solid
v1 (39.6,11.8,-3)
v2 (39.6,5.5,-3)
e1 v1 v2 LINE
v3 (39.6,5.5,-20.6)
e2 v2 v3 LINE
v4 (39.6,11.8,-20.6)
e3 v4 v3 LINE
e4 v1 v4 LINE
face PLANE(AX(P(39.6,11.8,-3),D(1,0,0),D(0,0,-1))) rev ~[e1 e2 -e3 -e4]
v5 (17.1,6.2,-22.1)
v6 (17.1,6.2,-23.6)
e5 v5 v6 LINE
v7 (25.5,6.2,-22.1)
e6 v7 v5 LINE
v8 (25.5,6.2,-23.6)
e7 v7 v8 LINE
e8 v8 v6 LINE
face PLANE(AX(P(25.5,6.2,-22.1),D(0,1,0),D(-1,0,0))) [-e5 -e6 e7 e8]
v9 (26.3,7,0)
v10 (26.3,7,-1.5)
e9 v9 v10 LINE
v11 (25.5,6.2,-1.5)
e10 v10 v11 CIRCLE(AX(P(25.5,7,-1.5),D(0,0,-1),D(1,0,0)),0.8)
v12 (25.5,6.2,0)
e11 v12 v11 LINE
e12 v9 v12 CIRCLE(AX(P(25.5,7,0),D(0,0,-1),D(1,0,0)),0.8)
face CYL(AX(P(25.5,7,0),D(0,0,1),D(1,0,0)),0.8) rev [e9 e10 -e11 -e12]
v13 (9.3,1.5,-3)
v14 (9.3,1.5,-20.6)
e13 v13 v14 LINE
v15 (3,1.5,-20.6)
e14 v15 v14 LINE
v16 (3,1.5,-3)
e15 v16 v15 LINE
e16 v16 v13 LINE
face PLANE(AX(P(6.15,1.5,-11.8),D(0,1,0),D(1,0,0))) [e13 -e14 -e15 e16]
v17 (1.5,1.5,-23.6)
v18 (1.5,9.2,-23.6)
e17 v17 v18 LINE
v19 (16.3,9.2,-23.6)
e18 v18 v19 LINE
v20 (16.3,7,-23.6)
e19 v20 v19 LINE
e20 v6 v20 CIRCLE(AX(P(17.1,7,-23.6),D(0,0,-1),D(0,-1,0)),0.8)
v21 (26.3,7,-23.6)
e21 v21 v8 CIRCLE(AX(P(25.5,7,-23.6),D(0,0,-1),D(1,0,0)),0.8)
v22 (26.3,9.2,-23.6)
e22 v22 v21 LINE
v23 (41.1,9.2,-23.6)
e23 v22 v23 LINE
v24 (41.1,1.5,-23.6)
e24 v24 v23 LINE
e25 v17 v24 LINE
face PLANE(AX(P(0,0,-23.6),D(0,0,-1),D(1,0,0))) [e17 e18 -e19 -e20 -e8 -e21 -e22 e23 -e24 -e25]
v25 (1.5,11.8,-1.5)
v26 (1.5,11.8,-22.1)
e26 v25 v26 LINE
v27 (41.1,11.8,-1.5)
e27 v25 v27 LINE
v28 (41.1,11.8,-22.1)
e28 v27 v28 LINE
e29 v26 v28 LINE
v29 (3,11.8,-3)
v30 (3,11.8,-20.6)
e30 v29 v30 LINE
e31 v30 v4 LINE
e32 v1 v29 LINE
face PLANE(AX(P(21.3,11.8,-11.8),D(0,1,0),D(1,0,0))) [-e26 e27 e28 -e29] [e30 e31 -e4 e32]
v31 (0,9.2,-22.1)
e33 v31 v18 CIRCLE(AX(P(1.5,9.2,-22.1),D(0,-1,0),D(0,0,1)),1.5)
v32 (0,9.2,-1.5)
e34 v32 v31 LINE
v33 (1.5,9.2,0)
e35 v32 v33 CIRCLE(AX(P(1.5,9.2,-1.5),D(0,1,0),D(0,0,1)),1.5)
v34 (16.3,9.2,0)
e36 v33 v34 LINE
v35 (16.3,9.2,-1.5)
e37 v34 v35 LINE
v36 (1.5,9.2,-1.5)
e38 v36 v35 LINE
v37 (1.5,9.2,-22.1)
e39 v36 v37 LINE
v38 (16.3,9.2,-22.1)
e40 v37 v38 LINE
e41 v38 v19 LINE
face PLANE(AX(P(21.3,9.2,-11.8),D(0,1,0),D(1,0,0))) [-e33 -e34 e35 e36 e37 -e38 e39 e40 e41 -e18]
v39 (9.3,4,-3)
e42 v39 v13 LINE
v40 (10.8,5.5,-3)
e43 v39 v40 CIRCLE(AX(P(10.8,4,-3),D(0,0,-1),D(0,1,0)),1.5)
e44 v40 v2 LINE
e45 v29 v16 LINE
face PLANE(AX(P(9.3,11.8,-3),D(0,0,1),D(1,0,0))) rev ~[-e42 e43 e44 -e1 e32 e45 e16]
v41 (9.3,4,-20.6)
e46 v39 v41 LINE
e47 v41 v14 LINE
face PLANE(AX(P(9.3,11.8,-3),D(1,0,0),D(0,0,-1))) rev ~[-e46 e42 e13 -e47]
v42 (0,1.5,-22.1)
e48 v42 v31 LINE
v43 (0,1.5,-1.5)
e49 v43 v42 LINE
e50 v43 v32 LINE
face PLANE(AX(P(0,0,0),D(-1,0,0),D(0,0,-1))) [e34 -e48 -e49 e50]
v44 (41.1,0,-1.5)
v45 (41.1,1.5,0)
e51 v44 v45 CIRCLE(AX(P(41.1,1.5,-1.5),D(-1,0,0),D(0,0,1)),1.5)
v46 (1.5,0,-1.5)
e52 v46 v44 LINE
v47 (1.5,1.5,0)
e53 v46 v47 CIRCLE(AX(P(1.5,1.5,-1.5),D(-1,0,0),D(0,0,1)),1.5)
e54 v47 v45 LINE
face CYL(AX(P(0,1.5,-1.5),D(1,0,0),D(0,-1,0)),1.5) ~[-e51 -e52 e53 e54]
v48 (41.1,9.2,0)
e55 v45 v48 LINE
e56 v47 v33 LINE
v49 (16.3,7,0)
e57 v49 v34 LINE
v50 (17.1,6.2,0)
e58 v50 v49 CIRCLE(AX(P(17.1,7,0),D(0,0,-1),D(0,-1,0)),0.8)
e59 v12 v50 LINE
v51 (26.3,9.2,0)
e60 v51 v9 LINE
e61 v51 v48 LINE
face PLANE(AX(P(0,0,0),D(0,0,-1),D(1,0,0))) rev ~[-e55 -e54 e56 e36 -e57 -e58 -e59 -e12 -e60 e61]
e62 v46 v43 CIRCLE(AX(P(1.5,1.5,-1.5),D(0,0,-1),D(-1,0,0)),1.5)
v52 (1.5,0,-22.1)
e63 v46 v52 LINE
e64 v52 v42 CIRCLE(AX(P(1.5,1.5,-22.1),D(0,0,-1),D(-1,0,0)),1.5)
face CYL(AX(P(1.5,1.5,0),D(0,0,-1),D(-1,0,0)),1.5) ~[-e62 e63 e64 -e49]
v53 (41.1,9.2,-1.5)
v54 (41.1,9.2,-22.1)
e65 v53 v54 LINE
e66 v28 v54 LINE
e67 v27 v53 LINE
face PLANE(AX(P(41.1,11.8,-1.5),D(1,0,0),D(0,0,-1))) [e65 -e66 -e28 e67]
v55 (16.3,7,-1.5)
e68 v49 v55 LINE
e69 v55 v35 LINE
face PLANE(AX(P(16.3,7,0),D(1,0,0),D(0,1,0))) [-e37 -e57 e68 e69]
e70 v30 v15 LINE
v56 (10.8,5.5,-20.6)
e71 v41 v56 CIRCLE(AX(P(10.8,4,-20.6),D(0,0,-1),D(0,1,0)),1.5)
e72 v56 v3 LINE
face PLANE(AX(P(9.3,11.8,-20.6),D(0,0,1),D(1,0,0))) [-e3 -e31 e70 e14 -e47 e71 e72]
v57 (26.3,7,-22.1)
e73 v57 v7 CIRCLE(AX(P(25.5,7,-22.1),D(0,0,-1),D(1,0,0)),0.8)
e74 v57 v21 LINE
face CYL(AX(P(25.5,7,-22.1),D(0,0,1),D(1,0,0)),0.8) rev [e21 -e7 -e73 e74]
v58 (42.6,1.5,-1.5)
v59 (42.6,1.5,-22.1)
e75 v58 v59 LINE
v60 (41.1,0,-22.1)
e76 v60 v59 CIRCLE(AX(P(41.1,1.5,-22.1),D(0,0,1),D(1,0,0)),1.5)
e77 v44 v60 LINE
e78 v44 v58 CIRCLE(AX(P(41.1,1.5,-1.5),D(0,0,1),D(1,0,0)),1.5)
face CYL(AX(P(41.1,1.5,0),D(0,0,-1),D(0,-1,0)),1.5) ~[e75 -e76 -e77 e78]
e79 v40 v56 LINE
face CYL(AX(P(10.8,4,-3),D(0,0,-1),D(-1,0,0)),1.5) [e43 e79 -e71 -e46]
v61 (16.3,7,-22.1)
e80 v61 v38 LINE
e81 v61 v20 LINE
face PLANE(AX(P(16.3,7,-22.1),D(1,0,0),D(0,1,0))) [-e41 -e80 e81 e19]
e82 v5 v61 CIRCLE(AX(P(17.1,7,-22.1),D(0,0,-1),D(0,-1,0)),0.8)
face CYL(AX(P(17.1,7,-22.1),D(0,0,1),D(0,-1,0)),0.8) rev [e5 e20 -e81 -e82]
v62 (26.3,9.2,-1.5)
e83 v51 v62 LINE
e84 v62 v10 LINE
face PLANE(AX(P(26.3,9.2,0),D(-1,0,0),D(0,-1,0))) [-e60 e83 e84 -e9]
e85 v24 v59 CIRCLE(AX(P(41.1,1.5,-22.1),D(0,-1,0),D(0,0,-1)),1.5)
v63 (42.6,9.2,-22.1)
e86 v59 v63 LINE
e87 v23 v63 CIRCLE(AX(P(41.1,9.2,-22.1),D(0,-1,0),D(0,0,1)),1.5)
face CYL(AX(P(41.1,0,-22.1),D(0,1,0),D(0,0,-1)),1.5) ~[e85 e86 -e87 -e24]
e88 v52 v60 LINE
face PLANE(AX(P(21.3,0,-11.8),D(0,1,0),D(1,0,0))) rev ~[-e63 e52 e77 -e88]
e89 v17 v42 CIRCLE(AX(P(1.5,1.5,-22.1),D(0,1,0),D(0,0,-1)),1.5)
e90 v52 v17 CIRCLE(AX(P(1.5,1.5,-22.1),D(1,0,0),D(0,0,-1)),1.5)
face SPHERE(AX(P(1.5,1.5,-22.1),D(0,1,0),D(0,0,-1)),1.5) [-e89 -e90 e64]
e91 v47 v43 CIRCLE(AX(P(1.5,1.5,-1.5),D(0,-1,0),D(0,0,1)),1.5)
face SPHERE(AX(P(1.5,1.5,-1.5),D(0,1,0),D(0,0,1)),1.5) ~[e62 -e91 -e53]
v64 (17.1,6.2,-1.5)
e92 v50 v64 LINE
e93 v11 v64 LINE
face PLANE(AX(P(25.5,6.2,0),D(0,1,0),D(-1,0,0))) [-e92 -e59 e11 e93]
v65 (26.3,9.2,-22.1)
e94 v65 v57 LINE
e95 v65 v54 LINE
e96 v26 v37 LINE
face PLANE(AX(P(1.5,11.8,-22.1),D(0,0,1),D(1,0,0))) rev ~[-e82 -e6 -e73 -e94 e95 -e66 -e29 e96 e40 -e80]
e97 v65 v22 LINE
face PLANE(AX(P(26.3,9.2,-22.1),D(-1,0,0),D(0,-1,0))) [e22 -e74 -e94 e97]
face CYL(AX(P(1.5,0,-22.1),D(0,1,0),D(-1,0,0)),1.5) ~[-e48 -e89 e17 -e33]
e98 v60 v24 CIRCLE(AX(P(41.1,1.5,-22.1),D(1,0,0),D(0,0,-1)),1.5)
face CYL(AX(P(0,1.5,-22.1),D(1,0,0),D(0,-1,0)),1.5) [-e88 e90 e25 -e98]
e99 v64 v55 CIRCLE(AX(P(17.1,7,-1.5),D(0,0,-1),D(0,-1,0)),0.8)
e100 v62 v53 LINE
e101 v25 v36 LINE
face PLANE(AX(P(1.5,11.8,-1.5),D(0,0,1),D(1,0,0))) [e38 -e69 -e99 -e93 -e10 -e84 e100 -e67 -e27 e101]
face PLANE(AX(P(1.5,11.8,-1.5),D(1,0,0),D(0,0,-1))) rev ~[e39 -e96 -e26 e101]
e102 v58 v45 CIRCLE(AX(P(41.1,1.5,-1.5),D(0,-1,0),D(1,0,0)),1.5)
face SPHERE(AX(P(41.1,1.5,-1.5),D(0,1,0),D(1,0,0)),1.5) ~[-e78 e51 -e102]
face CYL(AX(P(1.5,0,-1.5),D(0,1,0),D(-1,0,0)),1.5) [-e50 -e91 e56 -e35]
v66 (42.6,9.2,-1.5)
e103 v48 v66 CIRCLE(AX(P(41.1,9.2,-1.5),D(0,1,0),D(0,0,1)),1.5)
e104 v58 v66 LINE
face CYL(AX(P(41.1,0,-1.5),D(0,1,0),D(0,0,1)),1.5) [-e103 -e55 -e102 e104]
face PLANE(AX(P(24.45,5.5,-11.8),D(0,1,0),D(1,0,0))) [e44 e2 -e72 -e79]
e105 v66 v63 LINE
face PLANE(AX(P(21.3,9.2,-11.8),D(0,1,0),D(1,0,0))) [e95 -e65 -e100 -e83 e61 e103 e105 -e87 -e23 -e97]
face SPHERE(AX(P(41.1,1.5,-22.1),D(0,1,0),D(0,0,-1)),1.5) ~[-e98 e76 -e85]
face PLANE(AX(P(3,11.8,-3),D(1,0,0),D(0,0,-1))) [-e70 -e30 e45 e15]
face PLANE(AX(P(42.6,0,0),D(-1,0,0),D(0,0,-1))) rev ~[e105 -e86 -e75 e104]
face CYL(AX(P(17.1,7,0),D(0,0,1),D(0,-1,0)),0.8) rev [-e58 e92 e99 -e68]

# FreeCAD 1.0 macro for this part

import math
import FreeCAD as App
import Part
import Sketcher
Q = App.Units.Quantity


def edges_at(feature, points):
    """Names of the edges that pass closest to the given points."""
    edges = feature.Shape.Edges
    near = lambda p: min(range(len(edges)), key=lambda i: edges[i].distToShape(Part.Vertex(*p))[0])
    return sorted({f"Edge{near(p) + 1}" for p in points})

doc = App.newDocument("Part")
params = doc.addObject("Spreadsheet::Sheet", "Params")
for row, (alias, value) in enumerate([
    ("sketch1_width", "42.6 mm"),
    ("sketch1_height", "23.6 mm"),
    ("pad1_length", "11.8 mm"),
    ("sketch2_width", "30.3 mm"),
    ("sketch2_height", "17.6 mm"),
    ("pocket1_length", "6.3 mm"),
    ("sketch3_width", "6.3 mm"),
    ("sketch3_height", "17.6 mm"),
    ("pocket2_length", "10.3 mm"),
    ("sketch4_width", "42.6 mm"),
    ("sketch4_width2", "39.6 mm"),
    ("sketch4_height", "23.6 mm"),
    ("sketch4_height2", "20.6 mm"),
    ("pocket3_length", "2.6 mm"),
    ("fillet_radius", "1.5 mm"),
    ("fillet2_radius", "1.5 mm"),
    ("sketch5_radius", "0.8 mm"),
    ("sketch5_width", "10 mm"),
    ("sketch5_height", "2.2 mm"),
    ("pocket4_length", "1.5 mm"),
    ("sketch6_radius", "0.8 mm"),
    ("sketch6_width", "10 mm"),
    ("sketch6_height", "2.2 mm"),
    ("pocket5_length", "1.5 mm"),
], start=1):
    params.set(f"A{row}", alias)
    params.set(f"B{row}", "=" + value)
    params.setAlias(f"B{row}", alias)

body = doc.addObject("PartDesign::Body", "Body")

# Sketch on XZ plane
sketch1 = body.newObject("Sketcher::SketchObject", "Sketch")
sketch1.AttachmentSupport = (doc.getObject("XZ_Plane"), [""])
sketch1.MapMode = "FlatFace"
sketch1.addGeometry(Part.LineSegment(App.Vector(0, -24, 0), App.Vector(0, 0, 0)), False)
sketch1.addGeometry(Part.LineSegment(App.Vector(0, 0, 0), App.Vector(43, 0, 0)), False)
sketch1.addGeometry(Part.LineSegment(App.Vector(43, 0, 0), App.Vector(43, -24, 0)), False)
sketch1.addGeometry(Part.LineSegment(App.Vector(43, -24, 0), App.Vector(0, -24, 0)), False)
sketch1.addConstraint(Sketcher.Constraint("Coincident", 0, 2, 1, 1))
sketch1.addConstraint(Sketcher.Constraint("Coincident", 1, 2, 2, 1))
sketch1.addConstraint(Sketcher.Constraint("Coincident", 2, 2, 3, 1))
sketch1.addConstraint(Sketcher.Constraint("Coincident", 3, 2, 0, 1))
sketch1.addConstraint(Sketcher.Constraint("Vertical", 0))
sketch1.addConstraint(Sketcher.Constraint("Horizontal", 1))
sketch1.addConstraint(Sketcher.Constraint("Vertical", 2))
sketch1.addConstraint(Sketcher.Constraint("Horizontal", 3))
sketch1.addConstraint(Sketcher.Constraint("Coincident", 0, 2, -1, 1))
sketch1.addConstraint(Sketcher.Constraint("DistanceX", 1, 1, 1, 2, Q("42.6 mm")))
sketch1.addConstraint(Sketcher.Constraint("DistanceY", 0, 1, 0, 2, Q("23.6 mm")))
sketch1.setExpression("Constraints[9]", "Params.sketch1_width")
sketch1.setExpression("Constraints[10]", "Params.sketch1_height")
pad1 = body.newObject("PartDesign::Pad", "Pad")
pad1.Profile = sketch1
pad1.setExpression("Length", "Params.pad1_length")
pad1.Reversed = True

# Sketch on XZ plane
sketch2 = body.newObject("Sketcher::SketchObject", "Sketch001")
sketch2.AttachmentSupport = (doc.getObject("XZ_Plane"), [""])
sketch2.MapMode = "FlatFace"
sketch2.AttachmentOffset = App.Placement(App.Vector(0, 0, -11.8), App.Rotation())
sketch2.addGeometry(Part.LineSegment(App.Vector(9, -21, 0), App.Vector(9, -3, 0)), False)
sketch2.addGeometry(Part.LineSegment(App.Vector(9, -3, 0), App.Vector(40, -3, 0)), False)
sketch2.addGeometry(Part.LineSegment(App.Vector(40, -3, 0), App.Vector(40, -21, 0)), False)
sketch2.addGeometry(Part.LineSegment(App.Vector(40, -21, 0), App.Vector(9, -21, 0)), False)
sketch2.addConstraint(Sketcher.Constraint("Coincident", 0, 2, 1, 1))
sketch2.addConstraint(Sketcher.Constraint("Coincident", 1, 2, 2, 1))
sketch2.addConstraint(Sketcher.Constraint("Coincident", 2, 2, 3, 1))
sketch2.addConstraint(Sketcher.Constraint("Coincident", 3, 2, 0, 1))
sketch2.addConstraint(Sketcher.Constraint("Vertical", 0))
sketch2.addConstraint(Sketcher.Constraint("Horizontal", 1))
sketch2.addConstraint(Sketcher.Constraint("Vertical", 2))
sketch2.addConstraint(Sketcher.Constraint("Horizontal", 3))
sketch2.addConstraint(Sketcher.Constraint("DistanceX", 1, 1, 1, 2, Q("30.3 mm")))
sketch2.addConstraint(Sketcher.Constraint("DistanceY", 0, 1, 0, 2, Q("17.6 mm")))
sketch2.addConstraint(Sketcher.Constraint("DistanceY", 0, 2, -1, 1, Q("3 mm")))
sketch2.addConstraint(Sketcher.Constraint("DistanceX", -1, 1, 0, 2, Q("9.3 mm")))
sketch2.setExpression("Constraints[8]", "Params.sketch2_width")
sketch2.setExpression("Constraints[9]", "Params.sketch2_height")
pocket1 = body.newObject("PartDesign::Pocket", "Pocket")
pocket1.Profile = sketch2
pocket1.setExpression("Length", "Params.pocket1_length")
pocket1.Reversed = True

# Sketch on XZ plane
sketch3 = body.newObject("Sketcher::SketchObject", "Sketch002")
sketch3.AttachmentSupport = (doc.getObject("XZ_Plane"), [""])
sketch3.MapMode = "FlatFace"
sketch3.AttachmentOffset = App.Placement(App.Vector(0, 0, -11.8), App.Rotation())
sketch3.addGeometry(Part.LineSegment(App.Vector(3, -21, 0), App.Vector(3, -3, 0)), False)
sketch3.addGeometry(Part.LineSegment(App.Vector(3, -3, 0), App.Vector(9, -3, 0)), False)
sketch3.addGeometry(Part.LineSegment(App.Vector(9, -3, 0), App.Vector(9, -21, 0)), False)
sketch3.addGeometry(Part.LineSegment(App.Vector(9, -21, 0), App.Vector(3, -21, 0)), False)
sketch3.addConstraint(Sketcher.Constraint("Coincident", 0, 2, 1, 1))
sketch3.addConstraint(Sketcher.Constraint("Coincident", 1, 2, 2, 1))
sketch3.addConstraint(Sketcher.Constraint("Coincident", 2, 2, 3, 1))
sketch3.addConstraint(Sketcher.Constraint("Coincident", 3, 2, 0, 1))
sketch3.addConstraint(Sketcher.Constraint("Vertical", 0))
sketch3.addConstraint(Sketcher.Constraint("Horizontal", 1))
sketch3.addConstraint(Sketcher.Constraint("Vertical", 2))
sketch3.addConstraint(Sketcher.Constraint("Horizontal", 3))
sketch3.addConstraint(Sketcher.Constraint("DistanceX", 1, 1, 1, 2, Q("6.3 mm")))
sketch3.addConstraint(Sketcher.Constraint("DistanceY", 0, 1, 0, 2, Q("17.6 mm")))
sketch3.addConstraint(Sketcher.Constraint("DistanceX", -1, 1, 0, 2, Q("3 mm")))
sketch3.addConstraint(Sketcher.Constraint("DistanceY", 0, 2, -1, 1, Q("3 mm")))
sketch3.setExpression("Constraints[8]", "Params.sketch3_width")
sketch3.setExpression("Constraints[9]", "Params.sketch3_height")
pocket2 = body.newObject("PartDesign::Pocket", "Pocket001")
pocket2.Profile = sketch3
pocket2.setExpression("Length", "Params.pocket2_length")
pocket2.Reversed = True

# Sketch on XZ plane
sketch4 = body.newObject("Sketcher::SketchObject", "Sketch003")
sketch4.AttachmentSupport = (doc.getObject("XZ_Plane"), [""])
sketch4.MapMode = "FlatFace"
sketch4.AttachmentOffset = App.Placement(App.Vector(0, 0, -11.8), App.Rotation())
sketch4.addGeometry(Part.LineSegment(App.Vector(0, -24, 0), App.Vector(0, 0, 0)), False)
sketch4.addGeometry(Part.LineSegment(App.Vector(0, 0, 0), App.Vector(43, 0, 0)), False)
sketch4.addGeometry(Part.LineSegment(App.Vector(43, 0, 0), App.Vector(43, -24, 0)), False)
sketch4.addGeometry(Part.LineSegment(App.Vector(43, -24, 0), App.Vector(0, -24, 0)), False)
sketch4.addGeometry(Part.LineSegment(App.Vector(41, -2, 0), App.Vector(2, -2, 0)), False)
sketch4.addGeometry(Part.LineSegment(App.Vector(2, -2, 0), App.Vector(2, -22, 0)), False)
sketch4.addGeometry(Part.LineSegment(App.Vector(2, -22, 0), App.Vector(41, -22, 0)), False)
sketch4.addGeometry(Part.LineSegment(App.Vector(41, -22, 0), App.Vector(41, -2, 0)), False)
sketch4.addConstraint(Sketcher.Constraint("Coincident", 0, 2, 1, 1))
sketch4.addConstraint(Sketcher.Constraint("Coincident", 1, 2, 2, 1))
sketch4.addConstraint(Sketcher.Constraint("Coincident", 2, 2, 3, 1))
sketch4.addConstraint(Sketcher.Constraint("Coincident", 3, 2, 0, 1))
sketch4.addConstraint(Sketcher.Constraint("Coincident", 4, 2, 5, 1))
sketch4.addConstraint(Sketcher.Constraint("Coincident", 5, 2, 6, 1))
sketch4.addConstraint(Sketcher.Constraint("Coincident", 6, 2, 7, 1))
sketch4.addConstraint(Sketcher.Constraint("Coincident", 7, 2, 4, 1))
sketch4.addConstraint(Sketcher.Constraint("Vertical", 0))
sketch4.addConstraint(Sketcher.Constraint("Horizontal", 1))
sketch4.addConstraint(Sketcher.Constraint("Vertical", 2))
sketch4.addConstraint(Sketcher.Constraint("Horizontal", 3))
sketch4.addConstraint(Sketcher.Constraint("Horizontal", 4))
sketch4.addConstraint(Sketcher.Constraint("Vertical", 5))
sketch4.addConstraint(Sketcher.Constraint("Horizontal", 6))
sketch4.addConstraint(Sketcher.Constraint("Vertical", 7))
sketch4.addConstraint(Sketcher.Constraint("Coincident", 0, 2, -1, 1))
sketch4.addConstraint(Sketcher.Constraint("DistanceX", 1, 1, 1, 2, Q("42.6 mm")))
sketch4.addConstraint(Sketcher.Constraint("DistanceX", 4, 2, 4, 1, Q("39.6 mm")))
sketch4.addConstraint(Sketcher.Constraint("DistanceY", 0, 1, 0, 2, Q("23.6 mm")))
sketch4.addConstraint(Sketcher.Constraint("DistanceY", 5, 2, 5, 1, Q("20.6 mm")))
sketch4.addConstraint(Sketcher.Constraint("DistanceX", -1, 1, 4, 2, Q("1.5 mm")))
sketch4.addConstraint(Sketcher.Constraint("DistanceY", 4, 2, -1, 1, Q("1.5 mm")))
sketch4.setExpression("Constraints[17]", "Params.sketch4_width")
sketch4.setExpression("Constraints[18]", "Params.sketch4_width2")
sketch4.setExpression("Constraints[19]", "Params.sketch4_height")
sketch4.setExpression("Constraints[20]", "Params.sketch4_height2")
pocket3 = body.newObject("PartDesign::Pocket", "Pocket002")
pocket3.Profile = sketch4
pocket3.setExpression("Length", "Params.pocket3_length")
pocket3.Reversed = True
doc.recompute()

fillet = body.newObject("PartDesign::Fillet", "Fillet")
fillet.Base = (pocket3, edges_at(pocket3, [
    (0, 4.6, -23.6),
    (42.6, 4.6, -23.6),
    (42.6, 4.6, 0),
    (0, 4.6, 0),
    (21.3, 0, -23.6),
    (42.6, 0, -11.8),
    (21.3, 0, 0),
    (0, 0, -11.8),
]))
fillet.setExpression("Radius", "Params.fillet_radius")
doc.recompute()

fillet2 = body.newObject("PartDesign::Fillet", "Fillet001")
fillet2.Base = (fillet, edges_at(fillet, [(9.3, 5.5, -11.8)]))
fillet2.setExpression("Radius", "Params.fillet2_radius")

# Sketch on XY plane
sketch5 = body.newObject("Sketcher::SketchObject", "Sketch004")
sketch5.AttachmentSupport = (doc.getObject("XY_Plane"), [""])
sketch5.MapMode = "FlatFace"
sketch5.addGeometry(Part.LineSegment(App.Vector(26.3, 9.2, 0), App.Vector(16.3, 9.2, 0)), False)
sketch5.addGeometry(Part.LineSegment(App.Vector(16.3, 9.2, 0), App.Vector(16.3, 7, 0)), False)
sketch5.addGeometry(Part.ArcOfCircle(Part.Circle(App.Vector(17.1, 7, 0), App.Vector(0, 0, 1), 0.8), math.radians(180), math.radians(270)), False)
sketch5.addGeometry(Part.LineSegment(App.Vector(17.1, 6.2, 0), App.Vector(25.5, 6.2, 0)), False)
sketch5.addGeometry(Part.ArcOfCircle(Part.Circle(App.Vector(25.5, 7, 0), App.Vector(0, 0, 1), 0.8), math.radians(-90), math.radians(0)), False)
sketch5.addGeometry(Part.LineSegment(App.Vector(26.3, 7, 0), App.Vector(26.3, 9.2, 0)), False)
sketch5.addConstraint(Sketcher.Constraint("Coincident", 0, 2, 1, 1))
sketch5.addConstraint(Sketcher.Constraint("Tangent", 1, 2, 2, 1))
sketch5.addConstraint(Sketcher.Constraint("Tangent", 2, 2, 3, 1))
sketch5.addConstraint(Sketcher.Constraint("Tangent", 3, 2, 4, 1))
sketch5.addConstraint(Sketcher.Constraint("Tangent", 4, 2, 5, 1))
sketch5.addConstraint(Sketcher.Constraint("Coincident", 5, 2, 0, 1))
sketch5.addConstraint(Sketcher.Constraint("Horizontal", 0))
sketch5.addConstraint(Sketcher.Constraint("Vertical", 1))
sketch5.addConstraint(Sketcher.Constraint("Horizontal", 3))
sketch5.addConstraint(Sketcher.Constraint("Vertical", 5))
sketch5.addConstraint(Sketcher.Constraint("Equal", 2, 4))
sketch5.addConstraint(Sketcher.Constraint("Radius", 2, Q("0.8 mm")))
sketch5.addConstraint(Sketcher.Constraint("DistanceX", 0, 2, 0, 1, Q("10 mm")))
sketch5.addConstraint(Sketcher.Constraint("DistanceY", 1, 2, 1, 1, Q("2.2 mm")))
sketch5.addConstraint(Sketcher.Constraint("DistanceY", -1, 1, 2, 3, Q("7 mm")))
sketch5.addConstraint(Sketcher.Constraint("DistanceX", -1, 1, 2, 3, Q("17.1 mm")))
sketch5.setExpression("Constraints[11]", "Params.sketch5_radius")
sketch5.setExpression("Constraints[12]", "Params.sketch5_width")
sketch5.setExpression("Constraints[13]", "Params.sketch5_height")
pocket4 = body.newObject("PartDesign::Pocket", "Pocket003")
pocket4.Profile = sketch5
pocket4.setExpression("Length", "Params.pocket4_length")

# Sketch on XY plane
sketch6 = body.newObject("Sketcher::SketchObject", "Sketch005")
sketch6.AttachmentSupport = (doc.getObject("XY_Plane"), [""])
sketch6.MapMode = "FlatFace"
sketch6.AttachmentOffset = App.Placement(App.Vector(0, 0, -22.1), App.Rotation())
sketch6.addGeometry(Part.LineSegment(App.Vector(16.3, 9.2, 0), App.Vector(26.3, 9.2, 0)), False)
sketch6.addGeometry(Part.LineSegment(App.Vector(26.3, 9.2, 0), App.Vector(26.3, 7, 0)), False)
sketch6.addGeometry(Part.ArcOfCircle(Part.Circle(App.Vector(25.5, 7, 0), App.Vector(0, 0, 1), 0.8), math.radians(-90), math.radians(0)), False)
sketch6.addGeometry(Part.LineSegment(App.Vector(25.5, 6.2, 0), App.Vector(17.1, 6.2, 0)), False)
sketch6.addGeometry(Part.ArcOfCircle(Part.Circle(App.Vector(17.1, 7, 0), App.Vector(0, 0, 1), 0.8), math.radians(180), math.radians(270)), False)
sketch6.addGeometry(Part.LineSegment(App.Vector(16.3, 7, 0), App.Vector(16.3, 9.2, 0)), False)
sketch6.addConstraint(Sketcher.Constraint("Coincident", 0, 2, 1, 1))
sketch6.addConstraint(Sketcher.Constraint("Tangent", 1, 2, 2, 2))
sketch6.addConstraint(Sketcher.Constraint("Tangent", 2, 1, 3, 1))
sketch6.addConstraint(Sketcher.Constraint("Tangent", 3, 2, 4, 2))
sketch6.addConstraint(Sketcher.Constraint("Tangent", 4, 1, 5, 1))
sketch6.addConstraint(Sketcher.Constraint("Coincident", 5, 2, 0, 1))
sketch6.addConstraint(Sketcher.Constraint("Horizontal", 0))
sketch6.addConstraint(Sketcher.Constraint("Vertical", 1))
sketch6.addConstraint(Sketcher.Constraint("Horizontal", 3))
sketch6.addConstraint(Sketcher.Constraint("Vertical", 5))
sketch6.addConstraint(Sketcher.Constraint("Equal", 2, 4))
sketch6.addConstraint(Sketcher.Constraint("Radius", 2, Q("0.8 mm")))
sketch6.addConstraint(Sketcher.Constraint("DistanceX", 0, 1, 0, 2, Q("10 mm")))
sketch6.addConstraint(Sketcher.Constraint("DistanceY", 1, 2, 1, 1, Q("2.2 mm")))
sketch6.addConstraint(Sketcher.Constraint("DistanceY", -1, 1, 2, 3, Q("7 mm")))
sketch6.addConstraint(Sketcher.Constraint("DistanceX", -1, 1, 2, 3, Q("25.5 mm")))
sketch6.setExpression("Constraints[11]", "Params.sketch6_radius")
sketch6.setExpression("Constraints[12]", "Params.sketch6_width")
sketch6.setExpression("Constraints[13]", "Params.sketch6_height")
pocket5 = body.newObject("PartDesign::Pocket", "Pocket004")
pocket5.Profile = sketch6
pocket5.setExpression("Length", "Params.pocket5_length")

doc.recompute()
